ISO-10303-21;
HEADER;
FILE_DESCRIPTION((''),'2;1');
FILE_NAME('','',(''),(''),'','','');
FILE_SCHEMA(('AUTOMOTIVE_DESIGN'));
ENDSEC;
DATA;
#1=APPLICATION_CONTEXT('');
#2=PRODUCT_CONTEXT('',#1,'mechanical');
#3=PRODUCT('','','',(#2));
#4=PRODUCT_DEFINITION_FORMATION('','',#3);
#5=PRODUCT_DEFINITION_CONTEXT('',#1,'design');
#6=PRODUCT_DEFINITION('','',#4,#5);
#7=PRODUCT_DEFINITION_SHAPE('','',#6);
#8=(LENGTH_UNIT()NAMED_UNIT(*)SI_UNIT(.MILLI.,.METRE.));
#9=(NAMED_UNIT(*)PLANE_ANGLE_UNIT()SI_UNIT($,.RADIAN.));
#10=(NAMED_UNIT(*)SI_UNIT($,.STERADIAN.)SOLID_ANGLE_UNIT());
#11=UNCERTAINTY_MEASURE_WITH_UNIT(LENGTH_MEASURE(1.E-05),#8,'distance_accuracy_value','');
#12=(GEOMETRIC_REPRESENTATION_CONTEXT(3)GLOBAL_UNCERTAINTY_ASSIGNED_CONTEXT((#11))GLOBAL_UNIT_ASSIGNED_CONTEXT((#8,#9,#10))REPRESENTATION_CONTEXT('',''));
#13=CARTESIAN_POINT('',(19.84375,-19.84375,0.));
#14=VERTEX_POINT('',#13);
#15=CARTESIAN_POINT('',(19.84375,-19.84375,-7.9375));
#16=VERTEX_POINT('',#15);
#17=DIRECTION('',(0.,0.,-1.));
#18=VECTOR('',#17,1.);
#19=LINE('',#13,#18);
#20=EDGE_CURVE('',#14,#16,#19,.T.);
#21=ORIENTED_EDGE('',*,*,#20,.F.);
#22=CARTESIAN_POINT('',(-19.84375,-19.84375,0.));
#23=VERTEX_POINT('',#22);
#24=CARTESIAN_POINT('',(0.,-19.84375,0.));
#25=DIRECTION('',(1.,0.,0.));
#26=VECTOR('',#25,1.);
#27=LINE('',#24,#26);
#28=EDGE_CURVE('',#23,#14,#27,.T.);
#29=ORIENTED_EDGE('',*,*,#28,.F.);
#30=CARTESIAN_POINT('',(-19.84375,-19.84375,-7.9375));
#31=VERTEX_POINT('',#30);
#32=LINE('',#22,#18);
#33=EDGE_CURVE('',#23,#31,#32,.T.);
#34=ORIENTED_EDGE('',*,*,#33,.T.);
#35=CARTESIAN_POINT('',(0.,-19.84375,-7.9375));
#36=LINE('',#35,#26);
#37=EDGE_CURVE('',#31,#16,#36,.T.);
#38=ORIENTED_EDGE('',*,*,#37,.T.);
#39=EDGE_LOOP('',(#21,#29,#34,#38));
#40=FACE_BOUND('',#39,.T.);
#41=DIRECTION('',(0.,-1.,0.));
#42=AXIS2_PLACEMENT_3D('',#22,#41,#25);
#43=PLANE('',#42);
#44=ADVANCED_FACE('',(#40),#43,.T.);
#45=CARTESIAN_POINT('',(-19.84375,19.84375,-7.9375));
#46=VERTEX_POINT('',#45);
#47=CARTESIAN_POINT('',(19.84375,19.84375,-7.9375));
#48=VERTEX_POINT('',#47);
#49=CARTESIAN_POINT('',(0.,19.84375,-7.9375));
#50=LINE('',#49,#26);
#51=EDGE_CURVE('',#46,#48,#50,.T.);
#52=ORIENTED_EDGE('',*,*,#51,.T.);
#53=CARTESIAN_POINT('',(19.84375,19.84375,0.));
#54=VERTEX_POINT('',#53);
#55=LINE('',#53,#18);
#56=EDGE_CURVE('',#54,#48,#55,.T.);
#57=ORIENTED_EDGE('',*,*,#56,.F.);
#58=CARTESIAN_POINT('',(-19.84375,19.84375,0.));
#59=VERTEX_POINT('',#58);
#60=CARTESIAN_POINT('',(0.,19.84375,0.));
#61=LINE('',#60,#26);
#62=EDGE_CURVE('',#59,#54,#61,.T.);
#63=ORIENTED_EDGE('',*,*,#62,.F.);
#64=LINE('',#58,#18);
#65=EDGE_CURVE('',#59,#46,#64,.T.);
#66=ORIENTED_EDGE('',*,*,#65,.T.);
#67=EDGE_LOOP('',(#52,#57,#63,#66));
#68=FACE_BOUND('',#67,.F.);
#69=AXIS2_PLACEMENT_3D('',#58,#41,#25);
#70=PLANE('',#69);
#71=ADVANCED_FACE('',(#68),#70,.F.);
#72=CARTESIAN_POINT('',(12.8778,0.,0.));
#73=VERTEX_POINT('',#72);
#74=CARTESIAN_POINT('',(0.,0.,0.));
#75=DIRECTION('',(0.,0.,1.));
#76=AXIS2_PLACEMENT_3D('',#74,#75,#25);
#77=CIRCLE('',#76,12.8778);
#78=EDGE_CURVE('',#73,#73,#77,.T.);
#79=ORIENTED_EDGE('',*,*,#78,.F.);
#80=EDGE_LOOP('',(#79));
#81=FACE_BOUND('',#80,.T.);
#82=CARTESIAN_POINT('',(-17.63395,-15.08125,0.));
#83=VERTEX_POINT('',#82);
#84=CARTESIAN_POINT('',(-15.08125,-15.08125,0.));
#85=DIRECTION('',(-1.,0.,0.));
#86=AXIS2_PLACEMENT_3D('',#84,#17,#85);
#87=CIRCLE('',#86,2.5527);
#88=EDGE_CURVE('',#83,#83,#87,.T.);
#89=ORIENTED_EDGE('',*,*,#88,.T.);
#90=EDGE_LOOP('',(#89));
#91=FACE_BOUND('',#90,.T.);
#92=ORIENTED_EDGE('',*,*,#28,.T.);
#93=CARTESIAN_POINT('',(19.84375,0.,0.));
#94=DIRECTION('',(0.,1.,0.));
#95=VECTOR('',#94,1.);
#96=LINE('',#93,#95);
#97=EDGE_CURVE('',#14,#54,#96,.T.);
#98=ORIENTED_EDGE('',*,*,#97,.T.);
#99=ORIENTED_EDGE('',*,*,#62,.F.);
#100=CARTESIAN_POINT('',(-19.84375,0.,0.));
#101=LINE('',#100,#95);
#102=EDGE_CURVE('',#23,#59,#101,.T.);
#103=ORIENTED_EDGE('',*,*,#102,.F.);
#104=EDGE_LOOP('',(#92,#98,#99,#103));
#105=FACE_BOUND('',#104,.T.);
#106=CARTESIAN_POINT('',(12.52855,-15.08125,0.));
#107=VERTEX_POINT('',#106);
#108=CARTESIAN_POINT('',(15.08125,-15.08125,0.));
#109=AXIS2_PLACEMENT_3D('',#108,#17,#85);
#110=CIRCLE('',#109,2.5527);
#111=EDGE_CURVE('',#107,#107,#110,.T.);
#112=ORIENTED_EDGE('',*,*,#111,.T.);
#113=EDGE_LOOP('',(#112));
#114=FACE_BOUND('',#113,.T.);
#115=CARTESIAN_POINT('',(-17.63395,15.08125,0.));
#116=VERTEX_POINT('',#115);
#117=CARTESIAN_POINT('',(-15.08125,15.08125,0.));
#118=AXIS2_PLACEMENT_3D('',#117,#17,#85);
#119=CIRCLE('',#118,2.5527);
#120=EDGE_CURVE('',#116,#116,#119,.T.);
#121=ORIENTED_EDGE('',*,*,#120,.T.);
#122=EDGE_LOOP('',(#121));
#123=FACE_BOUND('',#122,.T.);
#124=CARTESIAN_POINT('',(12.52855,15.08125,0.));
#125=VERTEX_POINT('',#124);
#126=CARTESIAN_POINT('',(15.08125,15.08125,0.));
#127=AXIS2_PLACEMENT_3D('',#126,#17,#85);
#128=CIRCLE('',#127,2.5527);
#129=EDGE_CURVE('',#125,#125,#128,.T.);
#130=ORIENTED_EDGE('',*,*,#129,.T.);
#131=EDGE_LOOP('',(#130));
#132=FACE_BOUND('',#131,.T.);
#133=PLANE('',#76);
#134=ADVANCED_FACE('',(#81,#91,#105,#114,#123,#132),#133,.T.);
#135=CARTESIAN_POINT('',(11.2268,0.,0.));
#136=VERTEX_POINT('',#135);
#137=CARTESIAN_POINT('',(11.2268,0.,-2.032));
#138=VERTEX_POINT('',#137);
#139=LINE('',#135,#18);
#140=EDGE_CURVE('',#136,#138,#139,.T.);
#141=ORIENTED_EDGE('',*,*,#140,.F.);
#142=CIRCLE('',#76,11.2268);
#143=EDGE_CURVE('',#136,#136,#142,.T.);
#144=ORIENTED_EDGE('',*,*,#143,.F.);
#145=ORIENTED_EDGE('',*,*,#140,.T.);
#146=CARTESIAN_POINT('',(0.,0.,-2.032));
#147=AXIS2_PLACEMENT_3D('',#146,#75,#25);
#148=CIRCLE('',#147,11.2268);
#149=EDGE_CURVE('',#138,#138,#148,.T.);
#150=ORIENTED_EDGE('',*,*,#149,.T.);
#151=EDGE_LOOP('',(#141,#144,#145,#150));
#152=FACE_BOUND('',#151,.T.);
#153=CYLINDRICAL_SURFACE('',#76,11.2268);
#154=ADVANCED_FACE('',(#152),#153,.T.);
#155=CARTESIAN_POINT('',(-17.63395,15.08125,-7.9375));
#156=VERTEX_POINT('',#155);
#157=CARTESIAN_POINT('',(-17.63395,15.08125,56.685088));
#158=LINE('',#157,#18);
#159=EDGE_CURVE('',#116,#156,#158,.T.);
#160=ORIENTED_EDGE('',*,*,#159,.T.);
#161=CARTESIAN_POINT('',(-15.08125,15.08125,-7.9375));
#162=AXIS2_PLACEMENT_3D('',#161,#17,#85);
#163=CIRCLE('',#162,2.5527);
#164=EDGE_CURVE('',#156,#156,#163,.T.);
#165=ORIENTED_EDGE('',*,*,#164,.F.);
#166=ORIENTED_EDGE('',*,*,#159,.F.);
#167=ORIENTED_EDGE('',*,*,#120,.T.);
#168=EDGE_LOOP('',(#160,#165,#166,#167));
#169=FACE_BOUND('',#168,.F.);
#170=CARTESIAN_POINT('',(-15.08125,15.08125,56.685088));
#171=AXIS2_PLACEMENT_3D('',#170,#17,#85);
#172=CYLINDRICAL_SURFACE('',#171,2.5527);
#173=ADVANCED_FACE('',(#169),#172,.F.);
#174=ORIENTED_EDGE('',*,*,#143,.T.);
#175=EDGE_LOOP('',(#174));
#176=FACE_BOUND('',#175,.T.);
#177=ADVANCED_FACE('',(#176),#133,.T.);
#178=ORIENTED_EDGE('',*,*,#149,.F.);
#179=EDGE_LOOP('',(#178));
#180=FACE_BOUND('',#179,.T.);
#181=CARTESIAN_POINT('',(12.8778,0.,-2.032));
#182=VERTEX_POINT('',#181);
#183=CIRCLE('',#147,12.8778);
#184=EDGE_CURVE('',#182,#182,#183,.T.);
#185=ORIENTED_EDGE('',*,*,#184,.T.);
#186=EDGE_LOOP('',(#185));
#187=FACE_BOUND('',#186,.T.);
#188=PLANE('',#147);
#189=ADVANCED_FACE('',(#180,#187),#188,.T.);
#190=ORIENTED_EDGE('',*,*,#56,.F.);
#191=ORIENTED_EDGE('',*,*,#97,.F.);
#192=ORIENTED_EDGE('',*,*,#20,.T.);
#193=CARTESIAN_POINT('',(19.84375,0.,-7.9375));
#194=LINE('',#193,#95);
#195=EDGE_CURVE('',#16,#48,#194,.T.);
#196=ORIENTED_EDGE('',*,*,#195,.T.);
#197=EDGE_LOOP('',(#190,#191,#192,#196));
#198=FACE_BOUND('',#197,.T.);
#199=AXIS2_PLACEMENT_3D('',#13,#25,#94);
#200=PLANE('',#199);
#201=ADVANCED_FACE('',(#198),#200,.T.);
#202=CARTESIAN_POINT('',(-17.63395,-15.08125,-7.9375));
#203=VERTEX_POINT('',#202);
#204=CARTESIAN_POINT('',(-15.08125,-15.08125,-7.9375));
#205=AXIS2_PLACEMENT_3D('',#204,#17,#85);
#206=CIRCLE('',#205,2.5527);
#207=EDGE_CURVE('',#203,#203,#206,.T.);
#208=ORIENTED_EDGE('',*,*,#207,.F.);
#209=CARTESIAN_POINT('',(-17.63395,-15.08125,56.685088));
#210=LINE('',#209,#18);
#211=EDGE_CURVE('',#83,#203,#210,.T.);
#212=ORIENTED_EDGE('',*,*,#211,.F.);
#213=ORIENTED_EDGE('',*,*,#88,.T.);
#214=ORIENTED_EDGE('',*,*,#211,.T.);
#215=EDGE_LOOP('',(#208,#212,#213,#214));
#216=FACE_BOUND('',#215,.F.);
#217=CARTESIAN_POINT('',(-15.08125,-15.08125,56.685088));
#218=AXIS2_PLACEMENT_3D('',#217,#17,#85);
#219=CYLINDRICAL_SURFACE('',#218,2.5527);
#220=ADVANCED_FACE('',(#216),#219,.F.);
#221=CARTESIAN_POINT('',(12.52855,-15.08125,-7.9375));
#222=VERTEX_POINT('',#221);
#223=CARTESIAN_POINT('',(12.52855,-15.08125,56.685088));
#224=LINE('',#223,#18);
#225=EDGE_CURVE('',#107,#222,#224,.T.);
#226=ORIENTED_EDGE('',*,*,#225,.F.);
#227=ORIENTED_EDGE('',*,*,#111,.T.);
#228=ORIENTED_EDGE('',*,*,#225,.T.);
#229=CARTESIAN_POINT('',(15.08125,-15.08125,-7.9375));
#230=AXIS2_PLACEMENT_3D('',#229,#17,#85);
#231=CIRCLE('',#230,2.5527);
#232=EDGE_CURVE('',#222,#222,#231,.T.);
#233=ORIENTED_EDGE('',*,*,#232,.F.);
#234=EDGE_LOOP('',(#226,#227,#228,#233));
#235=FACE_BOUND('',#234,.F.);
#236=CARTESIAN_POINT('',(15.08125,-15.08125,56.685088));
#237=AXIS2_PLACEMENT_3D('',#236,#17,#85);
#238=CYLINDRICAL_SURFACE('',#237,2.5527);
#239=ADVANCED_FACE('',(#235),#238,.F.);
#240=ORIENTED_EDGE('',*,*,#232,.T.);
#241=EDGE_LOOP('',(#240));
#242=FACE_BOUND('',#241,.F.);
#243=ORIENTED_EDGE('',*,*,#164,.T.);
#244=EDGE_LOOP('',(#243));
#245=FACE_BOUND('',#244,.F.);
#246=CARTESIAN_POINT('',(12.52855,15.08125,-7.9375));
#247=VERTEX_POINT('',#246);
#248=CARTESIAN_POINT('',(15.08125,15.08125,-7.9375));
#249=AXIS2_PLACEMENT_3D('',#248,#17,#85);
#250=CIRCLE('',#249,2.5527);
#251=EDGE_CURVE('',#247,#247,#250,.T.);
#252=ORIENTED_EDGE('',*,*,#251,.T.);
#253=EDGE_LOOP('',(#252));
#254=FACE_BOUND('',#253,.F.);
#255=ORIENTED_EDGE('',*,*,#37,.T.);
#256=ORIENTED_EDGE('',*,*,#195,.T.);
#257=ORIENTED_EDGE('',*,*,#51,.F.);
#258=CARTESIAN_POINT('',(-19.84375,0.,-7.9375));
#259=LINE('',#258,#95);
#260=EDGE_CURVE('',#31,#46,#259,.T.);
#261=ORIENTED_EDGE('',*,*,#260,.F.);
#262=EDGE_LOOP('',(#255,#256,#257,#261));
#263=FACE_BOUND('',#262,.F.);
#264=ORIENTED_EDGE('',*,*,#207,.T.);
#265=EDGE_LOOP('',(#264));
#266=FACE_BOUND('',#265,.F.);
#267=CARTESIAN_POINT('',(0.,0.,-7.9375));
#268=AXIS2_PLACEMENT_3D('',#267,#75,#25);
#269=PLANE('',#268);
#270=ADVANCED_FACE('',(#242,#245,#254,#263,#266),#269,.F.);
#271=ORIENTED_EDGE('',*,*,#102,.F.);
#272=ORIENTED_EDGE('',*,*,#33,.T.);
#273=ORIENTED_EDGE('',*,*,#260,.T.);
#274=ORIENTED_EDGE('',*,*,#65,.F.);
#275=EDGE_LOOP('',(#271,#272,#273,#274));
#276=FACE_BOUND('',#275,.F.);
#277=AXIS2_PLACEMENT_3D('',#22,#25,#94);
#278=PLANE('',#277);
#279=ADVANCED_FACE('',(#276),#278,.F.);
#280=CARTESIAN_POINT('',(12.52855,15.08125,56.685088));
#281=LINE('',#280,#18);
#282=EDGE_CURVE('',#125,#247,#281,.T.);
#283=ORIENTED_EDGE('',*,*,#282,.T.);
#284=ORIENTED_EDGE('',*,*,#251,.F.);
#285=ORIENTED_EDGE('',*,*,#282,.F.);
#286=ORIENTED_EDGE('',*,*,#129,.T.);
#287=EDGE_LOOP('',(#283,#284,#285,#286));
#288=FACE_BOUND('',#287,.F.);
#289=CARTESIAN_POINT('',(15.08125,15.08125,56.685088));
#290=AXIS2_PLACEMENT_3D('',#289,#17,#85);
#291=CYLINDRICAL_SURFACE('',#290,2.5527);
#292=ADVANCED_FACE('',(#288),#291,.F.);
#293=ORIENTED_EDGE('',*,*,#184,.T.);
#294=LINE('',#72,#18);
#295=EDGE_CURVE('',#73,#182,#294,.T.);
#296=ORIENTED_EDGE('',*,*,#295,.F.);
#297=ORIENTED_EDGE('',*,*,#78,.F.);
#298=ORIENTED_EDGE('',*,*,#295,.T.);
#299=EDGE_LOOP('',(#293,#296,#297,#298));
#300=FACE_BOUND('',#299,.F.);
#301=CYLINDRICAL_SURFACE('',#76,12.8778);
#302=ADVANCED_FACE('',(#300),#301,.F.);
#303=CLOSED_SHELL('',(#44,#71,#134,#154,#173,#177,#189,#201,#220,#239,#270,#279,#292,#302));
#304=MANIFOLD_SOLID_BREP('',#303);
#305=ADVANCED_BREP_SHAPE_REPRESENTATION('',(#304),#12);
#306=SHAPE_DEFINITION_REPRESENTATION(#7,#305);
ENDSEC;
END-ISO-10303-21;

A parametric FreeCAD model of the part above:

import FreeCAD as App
import Part
import Sketcher

V = App.Vector
Q = App.Units.Quantity

doc = App.newDocument("Part")
body = doc.addObject("PartDesign::Body", "Body")

sketch1 = doc.addObject("Sketcher::SketchObject", "Sketch")
body.addObject(sketch1)
sketch1.AttachmentSupport = (doc.XY_Plane, [""])
sketch1.MapMode = "FlatFace"
sketch1.addGeometry(Part.LineSegment(V(-20, 20, 0), V(-20, -20, 0)), False)
sketch1.addGeometry(Part.LineSegment(V(-20, -20, 0), V(20, -20, 0)), False)
sketch1.addGeometry(Part.LineSegment(V(20, -20, 0), V(20, 20, 0)), False)
sketch1.addGeometry(Part.LineSegment(V(20, 20, 0), V(-20, 20, 0)), False)
sketch1.addConstraint(Sketcher.Constraint("Coincident", 0, 2, 1, 1))
sketch1.addConstraint(Sketcher.Constraint("Coincident", 1, 2, 2, 1))
sketch1.addConstraint(Sketcher.Constraint("Coincident", 2, 2, 3, 1))
sketch1.addConstraint(Sketcher.Constraint("Coincident", 3, 2, 0, 1))
sketch1.addConstraint(Sketcher.Constraint("Vertical", 0))
sketch1.addConstraint(Sketcher.Constraint("Horizontal", 1))
sketch1.addConstraint(Sketcher.Constraint("Vertical", 2))
sketch1.addConstraint(Sketcher.Constraint("Horizontal", 3))
sketch1.addConstraint(Sketcher.Constraint("Symmetric", 0, 2, 2, 2, -1, 1))
sketch1.addConstraint(Sketcher.Constraint("Equal", 3, 0))
sketch1.addConstraint(Sketcher.Constraint("DistanceX", 1, 1, 1, 2, Q("1.5625 in")))
pad1 = doc.addObject("PartDesign::Pad", "Pad")
body.addObject(pad1)
pad1.Profile = sketch1
pad1.Length = Q("0.3125 in")
pad1.Reversed = True

sketch2 = doc.addObject("Sketcher::SketchObject", "Sketch001")
body.addObject(sketch2)
sketch2.AttachmentSupport = (doc.XY_Plane, [""])
sketch2.MapMode = "FlatFace"
sketch2.addGeometry(Part.Circle(V(0, 0, 0), V(0, 0, 1), 13), False)
sketch2.addGeometry(Part.Circle(V(0, 0, 0), V(0, 0, 1), 11), False)
sketch2.addConstraint(Sketcher.Constraint("Coincident", 0, 3, -1, 1))
sketch2.addConstraint(Sketcher.Constraint("Coincident", 1, 3, -1, 1))
sketch2.addConstraint(Sketcher.Constraint("Diameter", 0, Q("1.014 in")))
sketch2.addConstraint(Sketcher.Constraint("Diameter", 1, Q("0.884 in")))
pocket1 = doc.addObject("PartDesign::Pocket", "Pocket")
body.addObject(pocket1)
pocket1.Profile = sketch2
pocket1.Length = Q("0.08 in")

sketch3 = doc.addObject("Sketcher::SketchObject", "Sketch002")
body.addObject(sketch3)
sketch3.AttachmentSupport = (doc.XY_Plane, [""])
sketch3.MapMode = "FlatFace"
sketch3.addGeometry(Part.Circle(V(-15.1, 15.1, 0), V(0, 0, 1), 2.6), False)
sketch3.addGeometry(Part.Circle(V(15.1, 15.1, 0), V(0, 0, 1), 2.6), False)
sketch3.addGeometry(Part.Circle(V(15.1, -15.1, 0), V(0, 0, 1), 2.6), False)
sketch3.addGeometry(Part.Circle(V(-15.1, -15.1, 0), V(0, 0, 1), 2.6), False)
sketch3.addConstraint(Sketcher.Constraint("Equal", 0, 1))
sketch3.addConstraint(Sketcher.Constraint("Equal", 1, 2))
sketch3.addConstraint(Sketcher.Constraint("Equal", 2, 3))
sketch3.addConstraint(Sketcher.Constraint("Symmetric", 0, 3, 2, 3, -1, 1))
sketch3.addConstraint(Sketcher.Constraint("Symmetric", 1, 3, 3, 3, -1, 1))
sketch3.addConstraint(Sketcher.Constraint("Symmetric", 0, 3, 1, 3, -2))
sketch3.addConstraint(Sketcher.Constraint("Diameter", 0, Q("0.201 in")))
sketch3.addConstraint(Sketcher.Constraint("DistanceX", 0, 3, -1, 1, Q("0.59375 in")))
sketch3.addConstraint(Sketcher.Constraint("DistanceY", -1, 1, 0, 3, Q("0.59375 in")))
doc.recompute()
hole = doc.addObject("PartDesign::Hole", "Hole")
body.addObject(hole)
hole.Profile = sketch3
hole.ThreadType = "None"
hole.Diameter = Q("0.201 in")
hole.DepthType = "ThroughAll"

doc.recompute()
